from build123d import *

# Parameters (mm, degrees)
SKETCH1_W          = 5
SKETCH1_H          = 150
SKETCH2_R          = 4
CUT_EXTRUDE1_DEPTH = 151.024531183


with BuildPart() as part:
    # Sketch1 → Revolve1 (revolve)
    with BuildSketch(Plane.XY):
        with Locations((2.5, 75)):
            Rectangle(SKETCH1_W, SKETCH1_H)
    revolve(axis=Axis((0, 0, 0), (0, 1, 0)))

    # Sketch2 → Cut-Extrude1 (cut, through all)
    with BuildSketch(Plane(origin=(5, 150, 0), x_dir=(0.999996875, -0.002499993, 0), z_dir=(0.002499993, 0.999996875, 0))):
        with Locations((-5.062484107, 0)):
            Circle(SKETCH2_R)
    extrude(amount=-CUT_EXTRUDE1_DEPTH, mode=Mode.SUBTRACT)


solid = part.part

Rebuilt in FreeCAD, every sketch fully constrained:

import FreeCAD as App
import Part
import Sketcher

doc = App.newDocument("Part")
params = doc.addObject("Spreadsheet::Sheet", "Params")
for row, (alias, value) in enumerate([
    ("sketch1_width", "5 mm"),
    ("sketch1_height", "150 mm"),
    ("revolution_angle", "360 deg"),
    ("sketch2_diameter", "8 mm"),
], start=1):
    params.set(f"A{row}", alias)
    params.set(f"B{row}", "=" + value)
    params.setAlias(f"B{row}", alias)

body = doc.addObject("PartDesign::Body", "Body")

# Sketch on XY plane
sketch1 = body.newObject("Sketcher::SketchObject", "Sketch")
sketch1.AttachmentSupport = (doc.getObject("XY_Plane"), [""])
sketch1.MapMode = "FlatFace"
sketch1.addGeometry([
    Part.LineSegment(App.Vector(0, 150, 0), App.Vector(0, 0, 0)),
    Part.LineSegment(App.Vector(0, 0, 0), App.Vector(5, 0, 0)),
    Part.LineSegment(App.Vector(5, 0, 0), App.Vector(5, 150, 0)),
    Part.LineSegment(App.Vector(5, 150, 0), App.Vector(0, 150, 0)),
], False)
sketch1.addConstraint([
    Sketcher.Constraint("Coincident", 0, 2, 1, 1),
    Sketcher.Constraint("Coincident", 1, 2, 2, 1),
    Sketcher.Constraint("Coincident", 2, 2, 3, 1),
    Sketcher.Constraint("Coincident", 3, 2, 0, 1),
    Sketcher.Constraint("Vertical", 0),
    Sketcher.Constraint("Horizontal", 1),
    Sketcher.Constraint("Vertical", 2),
    Sketcher.Constraint("Horizontal", 3),
    Sketcher.Constraint("Coincident", 0, 2, -1, 1),
    Sketcher.Constraint("DistanceX", 1, 1, 1, 2, 5.0),
    Sketcher.Constraint("DistanceY", 0, 2, 0, 1, 150.0),
])
sketch1.setExpression("Constraints[9]", "Params.sketch1_width")
sketch1.setExpression("Constraints[10]", "Params.sketch1_height")
revolution = body.newObject("PartDesign::Revolution", "Revolution")
revolution.Profile = sketch1
revolution.ReferenceAxis = (sketch1, ["V_Axis"])
revolution.setExpression("Angle", "Params.revolution_angle")

# Sketch on an angled plane
sketch2 = body.newObject("Sketcher::SketchObject", "Sketch001")
sketch2.Placement = App.Placement(App.Vector(5, 150, 0), App.Rotation(App.Vector(0.999996875, -0.002499993, 0), App.Vector(0, 0, -1), App.Vector(0.002499993, 0.999996875, 0), "ZXY"))
sketch2.addGeometry(Part.Circle(App.Vector(-5.062484, 0, 0), App.Vector(0, 0, 1), 4), False)
sketch2.addConstraint([
    Sketcher.Constraint("PointOnObject", 0, 3, -1),
    Sketcher.Constraint("Diameter", 0, 8.0),
    Sketcher.Constraint("DistanceX", 0, 3, -1, 1, 5.062484),
])
sketch2.setExpression("Constraints[1]", "Params.sketch2_diameter")
pocket1 = body.newObject("PartDesign::Pocket", "Pocket")
pocket1.Profile = sketch2
pocket1.Type = "ThroughAll"

doc.recompute()
